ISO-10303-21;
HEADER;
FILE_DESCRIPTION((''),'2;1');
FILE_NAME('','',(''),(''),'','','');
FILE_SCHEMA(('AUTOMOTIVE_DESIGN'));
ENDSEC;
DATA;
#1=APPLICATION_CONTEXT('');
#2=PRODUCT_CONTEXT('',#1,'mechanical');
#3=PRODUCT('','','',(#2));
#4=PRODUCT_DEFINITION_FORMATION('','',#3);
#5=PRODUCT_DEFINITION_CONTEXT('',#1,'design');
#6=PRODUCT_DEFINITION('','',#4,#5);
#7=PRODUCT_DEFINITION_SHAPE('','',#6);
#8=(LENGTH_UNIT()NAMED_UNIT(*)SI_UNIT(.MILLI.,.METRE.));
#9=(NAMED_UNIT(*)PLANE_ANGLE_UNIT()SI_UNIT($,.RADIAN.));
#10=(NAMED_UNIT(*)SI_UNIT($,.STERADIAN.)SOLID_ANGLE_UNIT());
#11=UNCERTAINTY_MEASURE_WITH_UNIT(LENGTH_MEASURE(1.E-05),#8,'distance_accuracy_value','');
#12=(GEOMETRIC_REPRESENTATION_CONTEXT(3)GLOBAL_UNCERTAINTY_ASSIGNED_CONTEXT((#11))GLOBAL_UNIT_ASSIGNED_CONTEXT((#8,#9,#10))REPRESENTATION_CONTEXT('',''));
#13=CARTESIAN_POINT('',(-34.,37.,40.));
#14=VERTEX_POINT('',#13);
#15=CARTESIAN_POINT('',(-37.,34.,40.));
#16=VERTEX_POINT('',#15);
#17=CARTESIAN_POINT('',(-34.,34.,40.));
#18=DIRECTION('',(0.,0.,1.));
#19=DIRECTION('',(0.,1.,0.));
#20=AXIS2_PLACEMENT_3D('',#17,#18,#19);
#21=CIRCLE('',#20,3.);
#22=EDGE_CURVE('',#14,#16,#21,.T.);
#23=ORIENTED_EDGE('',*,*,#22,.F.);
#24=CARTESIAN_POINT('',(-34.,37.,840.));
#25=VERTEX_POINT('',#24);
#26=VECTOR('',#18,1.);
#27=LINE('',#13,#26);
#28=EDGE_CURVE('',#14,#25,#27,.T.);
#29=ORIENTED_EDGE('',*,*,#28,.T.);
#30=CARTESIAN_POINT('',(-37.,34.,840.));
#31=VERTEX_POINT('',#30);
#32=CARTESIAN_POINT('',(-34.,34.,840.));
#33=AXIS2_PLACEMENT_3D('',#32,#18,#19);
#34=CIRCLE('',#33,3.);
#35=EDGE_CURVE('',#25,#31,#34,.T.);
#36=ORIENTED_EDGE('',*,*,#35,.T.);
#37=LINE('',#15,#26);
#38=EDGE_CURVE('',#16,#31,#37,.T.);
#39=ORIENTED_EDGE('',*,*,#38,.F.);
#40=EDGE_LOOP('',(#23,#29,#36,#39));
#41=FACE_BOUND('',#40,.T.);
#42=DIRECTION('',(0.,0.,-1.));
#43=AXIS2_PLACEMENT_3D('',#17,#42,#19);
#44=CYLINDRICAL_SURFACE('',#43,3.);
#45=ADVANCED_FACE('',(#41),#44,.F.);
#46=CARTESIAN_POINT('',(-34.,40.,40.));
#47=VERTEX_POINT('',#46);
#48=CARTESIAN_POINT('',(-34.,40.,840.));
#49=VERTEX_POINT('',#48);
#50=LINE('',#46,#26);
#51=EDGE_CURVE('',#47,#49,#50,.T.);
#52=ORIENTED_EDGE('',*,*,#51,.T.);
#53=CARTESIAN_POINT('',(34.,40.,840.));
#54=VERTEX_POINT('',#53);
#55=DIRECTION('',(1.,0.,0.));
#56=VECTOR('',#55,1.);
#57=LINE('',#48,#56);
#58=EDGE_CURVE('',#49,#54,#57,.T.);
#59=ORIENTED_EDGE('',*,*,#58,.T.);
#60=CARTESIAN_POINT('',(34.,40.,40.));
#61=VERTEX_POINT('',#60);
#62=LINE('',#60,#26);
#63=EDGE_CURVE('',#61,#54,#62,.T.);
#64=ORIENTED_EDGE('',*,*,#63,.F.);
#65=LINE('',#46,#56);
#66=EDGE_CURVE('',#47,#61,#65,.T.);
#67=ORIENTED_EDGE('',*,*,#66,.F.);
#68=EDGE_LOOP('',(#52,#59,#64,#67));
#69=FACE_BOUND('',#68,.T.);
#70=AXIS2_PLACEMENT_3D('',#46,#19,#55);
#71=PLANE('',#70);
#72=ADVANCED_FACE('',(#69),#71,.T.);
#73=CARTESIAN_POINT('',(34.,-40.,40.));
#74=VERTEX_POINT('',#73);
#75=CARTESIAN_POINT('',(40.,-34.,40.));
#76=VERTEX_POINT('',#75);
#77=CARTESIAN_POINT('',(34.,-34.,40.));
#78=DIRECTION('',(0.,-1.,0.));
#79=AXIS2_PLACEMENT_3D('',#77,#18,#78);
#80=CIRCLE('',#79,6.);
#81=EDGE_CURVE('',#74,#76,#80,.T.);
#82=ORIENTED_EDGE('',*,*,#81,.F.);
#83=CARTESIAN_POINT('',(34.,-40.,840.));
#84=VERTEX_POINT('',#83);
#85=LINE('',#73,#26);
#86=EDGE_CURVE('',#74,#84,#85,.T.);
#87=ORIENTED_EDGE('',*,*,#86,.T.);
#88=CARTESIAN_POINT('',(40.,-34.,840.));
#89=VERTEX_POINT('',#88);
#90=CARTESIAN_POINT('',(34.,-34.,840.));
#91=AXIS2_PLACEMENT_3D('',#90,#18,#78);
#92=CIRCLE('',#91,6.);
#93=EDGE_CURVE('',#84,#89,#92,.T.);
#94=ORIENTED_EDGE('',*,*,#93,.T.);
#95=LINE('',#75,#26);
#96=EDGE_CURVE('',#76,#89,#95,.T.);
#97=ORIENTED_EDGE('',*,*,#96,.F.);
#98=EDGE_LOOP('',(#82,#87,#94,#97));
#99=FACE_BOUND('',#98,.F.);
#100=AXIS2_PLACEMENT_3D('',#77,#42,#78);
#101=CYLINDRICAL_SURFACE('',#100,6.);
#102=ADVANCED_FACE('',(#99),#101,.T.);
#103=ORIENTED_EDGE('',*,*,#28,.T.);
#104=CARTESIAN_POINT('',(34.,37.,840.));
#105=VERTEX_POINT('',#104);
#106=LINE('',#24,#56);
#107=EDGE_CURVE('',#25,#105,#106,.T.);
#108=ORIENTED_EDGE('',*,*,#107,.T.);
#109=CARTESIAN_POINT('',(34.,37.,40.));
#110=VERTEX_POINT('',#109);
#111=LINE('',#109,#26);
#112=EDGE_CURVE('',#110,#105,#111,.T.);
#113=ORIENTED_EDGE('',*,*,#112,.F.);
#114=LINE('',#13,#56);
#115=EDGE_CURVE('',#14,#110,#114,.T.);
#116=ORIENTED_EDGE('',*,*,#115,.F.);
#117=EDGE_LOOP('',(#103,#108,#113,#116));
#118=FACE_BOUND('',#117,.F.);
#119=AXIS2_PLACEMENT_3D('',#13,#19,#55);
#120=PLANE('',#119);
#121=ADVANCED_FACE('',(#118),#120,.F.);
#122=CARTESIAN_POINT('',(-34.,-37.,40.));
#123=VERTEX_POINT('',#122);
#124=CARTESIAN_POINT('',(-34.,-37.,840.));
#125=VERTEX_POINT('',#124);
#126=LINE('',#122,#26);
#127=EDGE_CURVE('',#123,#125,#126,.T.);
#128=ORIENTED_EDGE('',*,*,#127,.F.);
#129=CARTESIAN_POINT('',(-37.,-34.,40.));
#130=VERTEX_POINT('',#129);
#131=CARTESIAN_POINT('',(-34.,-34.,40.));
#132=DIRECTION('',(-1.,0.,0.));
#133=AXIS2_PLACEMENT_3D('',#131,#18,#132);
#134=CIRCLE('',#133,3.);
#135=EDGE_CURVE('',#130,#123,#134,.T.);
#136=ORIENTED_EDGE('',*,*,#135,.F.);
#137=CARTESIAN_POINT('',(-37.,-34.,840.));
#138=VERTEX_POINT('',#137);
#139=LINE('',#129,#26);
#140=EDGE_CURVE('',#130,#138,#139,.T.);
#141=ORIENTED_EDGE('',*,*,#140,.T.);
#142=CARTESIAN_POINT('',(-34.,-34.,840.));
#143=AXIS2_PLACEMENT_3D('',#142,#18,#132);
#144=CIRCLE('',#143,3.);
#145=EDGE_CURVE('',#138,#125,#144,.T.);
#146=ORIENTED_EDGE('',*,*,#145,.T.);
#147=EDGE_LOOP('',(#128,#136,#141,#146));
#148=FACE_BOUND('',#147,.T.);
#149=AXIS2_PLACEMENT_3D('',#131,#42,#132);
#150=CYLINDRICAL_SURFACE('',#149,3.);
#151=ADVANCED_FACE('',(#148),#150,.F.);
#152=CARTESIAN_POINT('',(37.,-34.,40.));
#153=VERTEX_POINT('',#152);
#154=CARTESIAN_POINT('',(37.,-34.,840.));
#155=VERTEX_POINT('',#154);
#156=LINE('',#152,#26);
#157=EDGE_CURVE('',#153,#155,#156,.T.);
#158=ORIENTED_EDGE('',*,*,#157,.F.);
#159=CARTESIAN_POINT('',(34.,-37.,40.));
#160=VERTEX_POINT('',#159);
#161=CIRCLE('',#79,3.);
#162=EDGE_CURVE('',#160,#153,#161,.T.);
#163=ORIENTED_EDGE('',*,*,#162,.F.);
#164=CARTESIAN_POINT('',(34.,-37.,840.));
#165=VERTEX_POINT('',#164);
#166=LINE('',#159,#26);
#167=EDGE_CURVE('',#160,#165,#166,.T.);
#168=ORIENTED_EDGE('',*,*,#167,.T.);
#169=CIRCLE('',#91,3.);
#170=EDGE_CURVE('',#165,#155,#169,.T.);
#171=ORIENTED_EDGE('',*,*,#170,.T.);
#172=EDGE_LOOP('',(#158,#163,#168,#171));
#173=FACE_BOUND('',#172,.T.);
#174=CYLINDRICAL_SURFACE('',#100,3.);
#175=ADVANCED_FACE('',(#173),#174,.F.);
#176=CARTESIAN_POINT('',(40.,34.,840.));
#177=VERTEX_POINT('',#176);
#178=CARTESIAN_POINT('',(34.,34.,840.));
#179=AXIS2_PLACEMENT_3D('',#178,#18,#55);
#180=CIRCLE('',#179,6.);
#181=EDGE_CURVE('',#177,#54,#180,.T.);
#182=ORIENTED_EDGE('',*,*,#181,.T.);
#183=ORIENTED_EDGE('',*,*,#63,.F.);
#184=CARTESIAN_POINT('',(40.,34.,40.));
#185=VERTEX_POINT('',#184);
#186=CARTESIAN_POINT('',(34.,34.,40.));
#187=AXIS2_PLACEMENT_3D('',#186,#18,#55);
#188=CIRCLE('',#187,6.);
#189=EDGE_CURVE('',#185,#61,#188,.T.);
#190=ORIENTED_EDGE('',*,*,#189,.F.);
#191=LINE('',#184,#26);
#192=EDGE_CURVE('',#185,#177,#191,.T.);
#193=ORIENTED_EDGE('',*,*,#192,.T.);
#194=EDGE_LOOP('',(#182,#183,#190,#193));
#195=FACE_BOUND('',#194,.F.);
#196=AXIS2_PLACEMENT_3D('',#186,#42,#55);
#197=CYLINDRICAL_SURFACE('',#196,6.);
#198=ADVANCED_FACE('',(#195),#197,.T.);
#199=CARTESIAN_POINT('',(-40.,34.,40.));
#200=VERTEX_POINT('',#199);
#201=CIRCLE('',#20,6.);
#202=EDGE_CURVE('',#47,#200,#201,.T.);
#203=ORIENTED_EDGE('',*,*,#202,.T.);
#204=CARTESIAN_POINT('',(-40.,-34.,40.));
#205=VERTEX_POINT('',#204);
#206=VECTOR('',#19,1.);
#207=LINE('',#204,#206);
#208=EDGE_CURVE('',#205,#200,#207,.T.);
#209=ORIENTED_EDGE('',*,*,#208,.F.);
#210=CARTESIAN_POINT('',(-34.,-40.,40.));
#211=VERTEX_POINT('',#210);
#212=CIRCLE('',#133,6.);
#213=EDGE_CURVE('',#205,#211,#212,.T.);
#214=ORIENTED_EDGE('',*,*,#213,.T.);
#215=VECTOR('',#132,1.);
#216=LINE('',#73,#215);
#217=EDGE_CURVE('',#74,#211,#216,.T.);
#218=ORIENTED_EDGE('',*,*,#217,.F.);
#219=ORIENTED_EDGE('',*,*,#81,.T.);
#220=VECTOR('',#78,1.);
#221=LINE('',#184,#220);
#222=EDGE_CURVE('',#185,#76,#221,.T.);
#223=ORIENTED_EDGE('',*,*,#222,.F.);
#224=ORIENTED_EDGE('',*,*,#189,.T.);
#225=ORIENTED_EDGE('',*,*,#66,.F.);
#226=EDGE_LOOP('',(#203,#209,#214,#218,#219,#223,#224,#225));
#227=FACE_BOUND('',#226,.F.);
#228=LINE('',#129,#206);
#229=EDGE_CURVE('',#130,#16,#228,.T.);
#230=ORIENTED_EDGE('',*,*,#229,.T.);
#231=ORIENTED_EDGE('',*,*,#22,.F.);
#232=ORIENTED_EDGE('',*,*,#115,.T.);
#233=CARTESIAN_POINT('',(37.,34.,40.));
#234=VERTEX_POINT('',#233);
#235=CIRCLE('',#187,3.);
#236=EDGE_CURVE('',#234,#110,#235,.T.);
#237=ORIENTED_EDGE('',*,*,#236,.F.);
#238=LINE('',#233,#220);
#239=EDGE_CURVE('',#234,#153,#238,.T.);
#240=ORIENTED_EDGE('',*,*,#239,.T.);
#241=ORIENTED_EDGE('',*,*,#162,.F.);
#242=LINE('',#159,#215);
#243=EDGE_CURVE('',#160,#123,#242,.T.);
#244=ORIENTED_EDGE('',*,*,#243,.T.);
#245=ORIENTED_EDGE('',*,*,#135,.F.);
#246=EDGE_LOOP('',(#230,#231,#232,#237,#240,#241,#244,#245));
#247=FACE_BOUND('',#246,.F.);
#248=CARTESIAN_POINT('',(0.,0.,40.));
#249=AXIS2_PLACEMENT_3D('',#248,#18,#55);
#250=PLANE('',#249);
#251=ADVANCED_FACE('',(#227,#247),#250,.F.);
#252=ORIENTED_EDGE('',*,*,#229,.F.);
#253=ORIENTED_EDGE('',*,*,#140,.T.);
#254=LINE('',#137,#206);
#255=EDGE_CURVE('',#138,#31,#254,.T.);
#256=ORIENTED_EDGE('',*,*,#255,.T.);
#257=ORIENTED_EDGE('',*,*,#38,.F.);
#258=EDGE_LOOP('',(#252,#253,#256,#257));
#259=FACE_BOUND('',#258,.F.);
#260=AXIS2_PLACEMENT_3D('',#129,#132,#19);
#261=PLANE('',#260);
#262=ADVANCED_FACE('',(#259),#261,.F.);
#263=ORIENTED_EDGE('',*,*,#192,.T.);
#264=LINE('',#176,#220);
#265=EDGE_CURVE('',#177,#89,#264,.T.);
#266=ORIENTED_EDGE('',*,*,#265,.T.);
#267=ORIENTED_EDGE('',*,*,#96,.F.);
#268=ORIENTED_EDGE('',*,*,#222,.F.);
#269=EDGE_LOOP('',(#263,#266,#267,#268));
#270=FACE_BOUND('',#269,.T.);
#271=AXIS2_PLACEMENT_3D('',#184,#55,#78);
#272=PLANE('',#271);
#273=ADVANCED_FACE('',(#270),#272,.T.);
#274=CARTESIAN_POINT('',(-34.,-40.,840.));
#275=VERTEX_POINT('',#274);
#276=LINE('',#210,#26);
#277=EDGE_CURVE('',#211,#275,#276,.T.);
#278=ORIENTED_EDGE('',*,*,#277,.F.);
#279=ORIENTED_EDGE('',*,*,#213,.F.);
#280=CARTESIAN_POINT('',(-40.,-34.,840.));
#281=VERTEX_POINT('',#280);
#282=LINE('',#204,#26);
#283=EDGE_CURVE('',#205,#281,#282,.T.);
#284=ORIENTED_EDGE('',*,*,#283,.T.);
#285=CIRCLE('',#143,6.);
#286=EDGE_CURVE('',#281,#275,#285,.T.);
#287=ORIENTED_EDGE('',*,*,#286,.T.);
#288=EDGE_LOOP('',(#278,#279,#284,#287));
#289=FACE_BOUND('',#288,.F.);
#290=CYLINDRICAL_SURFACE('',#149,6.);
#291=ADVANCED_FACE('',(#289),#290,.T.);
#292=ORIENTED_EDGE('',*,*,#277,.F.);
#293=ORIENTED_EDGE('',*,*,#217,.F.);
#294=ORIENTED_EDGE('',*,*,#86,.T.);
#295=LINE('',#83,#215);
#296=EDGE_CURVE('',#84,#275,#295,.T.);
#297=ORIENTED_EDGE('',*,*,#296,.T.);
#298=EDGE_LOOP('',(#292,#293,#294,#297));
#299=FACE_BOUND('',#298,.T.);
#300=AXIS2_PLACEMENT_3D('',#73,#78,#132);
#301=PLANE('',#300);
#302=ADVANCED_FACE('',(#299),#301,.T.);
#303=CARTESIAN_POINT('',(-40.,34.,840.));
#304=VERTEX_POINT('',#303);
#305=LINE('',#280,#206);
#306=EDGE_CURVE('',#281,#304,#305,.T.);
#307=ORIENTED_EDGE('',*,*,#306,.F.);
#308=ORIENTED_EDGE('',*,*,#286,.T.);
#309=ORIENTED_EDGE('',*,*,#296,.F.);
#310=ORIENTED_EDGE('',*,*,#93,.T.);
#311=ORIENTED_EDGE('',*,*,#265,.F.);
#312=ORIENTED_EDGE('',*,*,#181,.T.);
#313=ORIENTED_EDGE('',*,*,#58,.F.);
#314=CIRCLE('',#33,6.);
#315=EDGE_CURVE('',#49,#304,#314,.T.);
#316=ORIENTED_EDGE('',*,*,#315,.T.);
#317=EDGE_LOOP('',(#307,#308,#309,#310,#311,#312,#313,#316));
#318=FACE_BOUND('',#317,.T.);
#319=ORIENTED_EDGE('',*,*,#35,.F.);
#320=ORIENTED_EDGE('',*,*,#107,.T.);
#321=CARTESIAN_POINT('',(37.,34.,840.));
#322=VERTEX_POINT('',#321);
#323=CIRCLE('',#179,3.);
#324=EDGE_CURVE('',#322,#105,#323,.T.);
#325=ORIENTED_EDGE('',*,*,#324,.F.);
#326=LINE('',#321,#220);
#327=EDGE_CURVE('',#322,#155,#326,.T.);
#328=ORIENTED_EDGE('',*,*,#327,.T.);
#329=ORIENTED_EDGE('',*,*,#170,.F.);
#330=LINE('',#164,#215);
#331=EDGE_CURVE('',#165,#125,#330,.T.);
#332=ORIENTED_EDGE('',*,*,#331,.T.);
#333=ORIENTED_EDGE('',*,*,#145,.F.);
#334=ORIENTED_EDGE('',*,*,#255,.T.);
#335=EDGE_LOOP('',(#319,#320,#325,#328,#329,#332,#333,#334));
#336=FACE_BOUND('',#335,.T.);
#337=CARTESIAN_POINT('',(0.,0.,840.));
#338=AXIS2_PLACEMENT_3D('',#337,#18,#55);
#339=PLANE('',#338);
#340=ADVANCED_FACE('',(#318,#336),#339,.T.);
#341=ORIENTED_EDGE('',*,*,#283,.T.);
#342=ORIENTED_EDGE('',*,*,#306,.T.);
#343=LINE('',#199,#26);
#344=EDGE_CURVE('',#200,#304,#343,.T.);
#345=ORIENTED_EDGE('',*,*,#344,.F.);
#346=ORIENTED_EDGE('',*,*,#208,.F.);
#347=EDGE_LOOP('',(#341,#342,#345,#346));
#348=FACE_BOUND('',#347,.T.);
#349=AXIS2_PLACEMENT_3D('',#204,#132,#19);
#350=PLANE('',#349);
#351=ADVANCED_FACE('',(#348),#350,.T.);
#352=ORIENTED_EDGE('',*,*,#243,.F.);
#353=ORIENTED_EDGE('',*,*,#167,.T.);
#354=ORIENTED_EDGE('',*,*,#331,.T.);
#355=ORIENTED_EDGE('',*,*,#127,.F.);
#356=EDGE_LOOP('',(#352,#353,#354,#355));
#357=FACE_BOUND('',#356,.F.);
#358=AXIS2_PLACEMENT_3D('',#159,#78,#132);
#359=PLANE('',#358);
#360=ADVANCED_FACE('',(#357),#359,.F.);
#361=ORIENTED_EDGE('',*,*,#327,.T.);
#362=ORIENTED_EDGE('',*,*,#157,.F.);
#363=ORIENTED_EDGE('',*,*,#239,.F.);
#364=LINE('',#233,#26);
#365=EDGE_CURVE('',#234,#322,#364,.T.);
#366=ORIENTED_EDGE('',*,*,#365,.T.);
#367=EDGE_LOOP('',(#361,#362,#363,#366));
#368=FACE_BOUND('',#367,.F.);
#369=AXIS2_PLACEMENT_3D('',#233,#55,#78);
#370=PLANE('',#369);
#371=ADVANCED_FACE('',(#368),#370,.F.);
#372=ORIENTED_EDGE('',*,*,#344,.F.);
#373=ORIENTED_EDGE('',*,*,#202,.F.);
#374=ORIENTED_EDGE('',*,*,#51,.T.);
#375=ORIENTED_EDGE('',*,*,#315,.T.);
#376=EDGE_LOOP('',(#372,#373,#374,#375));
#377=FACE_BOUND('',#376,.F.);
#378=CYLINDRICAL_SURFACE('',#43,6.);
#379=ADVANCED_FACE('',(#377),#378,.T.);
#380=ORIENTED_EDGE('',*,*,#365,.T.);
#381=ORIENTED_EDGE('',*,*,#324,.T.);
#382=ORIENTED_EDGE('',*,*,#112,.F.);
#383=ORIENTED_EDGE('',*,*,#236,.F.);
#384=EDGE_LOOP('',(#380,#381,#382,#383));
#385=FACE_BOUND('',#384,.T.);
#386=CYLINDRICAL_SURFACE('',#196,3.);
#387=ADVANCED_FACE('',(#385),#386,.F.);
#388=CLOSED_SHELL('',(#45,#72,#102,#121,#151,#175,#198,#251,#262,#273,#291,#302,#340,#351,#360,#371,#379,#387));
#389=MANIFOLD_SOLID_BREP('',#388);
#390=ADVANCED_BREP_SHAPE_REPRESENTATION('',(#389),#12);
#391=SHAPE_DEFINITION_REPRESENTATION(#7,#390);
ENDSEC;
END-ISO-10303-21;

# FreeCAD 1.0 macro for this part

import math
import FreeCAD as App
import Part
import Sketcher
from FreeCAD import Vector

doc = App.newDocument("Part")
params = doc.addObject("Spreadsheet::Sheet", "Params")
for row, (alias, value) in enumerate([
    ("sketch1_radius", "6 mm"),
    ("sketch1_radius2", "3 mm"),
    ("pad1_length", "800 mm"),
], start=1):
    params.set(f"A{row}", alias)
    params.set(f"B{row}", "=" + value)
    params.setAlias(f"B{row}", alias)

body = doc.addObject("PartDesign::Body", "Body")

# Sketch on XY plane
sketch1 = body.newObject("Sketcher::SketchObject", "Sketch")
sketch1.AttachmentSupport = (doc.getObject("XY_Plane"), [""])
sketch1.MapMode = "FlatFace"
sketch1.AttachmentOffset = App.Placement(Vector(0, 0, 40), App.Rotation())
sketch1.addGeometry(Part.LineSegment(Vector(-40, 34, 0), Vector(-40, -34, 0)), False)
sketch1.addGeometry(Part.ArcOfCircle(Part.Circle(Vector(-34, -34, 0), Vector(0, 0, 1), 6), math.radians(180), math.radians(270)), False)
sketch1.addGeometry(Part.LineSegment(Vector(-34, -40, 0), Vector(34, -40, 0)), False)
sketch1.addGeometry(Part.ArcOfCircle(Part.Circle(Vector(34, -34, 0), Vector(0, 0, 1), 6), math.radians(-90), math.radians(0)), False)
sketch1.addGeometry(Part.LineSegment(Vector(40, -34, 0), Vector(40, 34, 0)), False)
sketch1.addGeometry(Part.ArcOfCircle(Part.Circle(Vector(34, 34, 0), Vector(0, 0, 1), 6), math.radians(0), math.radians(90)), False)
sketch1.addGeometry(Part.LineSegment(Vector(34, 40, 0), Vector(-34, 40, 0)), False)
sketch1.addGeometry(Part.ArcOfCircle(Part.Circle(Vector(-34, 34, 0), Vector(0, 0, 1), 6), math.radians(90), math.radians(180)), False)
sketch1.addGeometry(Part.ArcOfCircle(Part.Circle(Vector(-34, 34, 0), Vector(0, 0, 1), 3), math.radians(90), math.radians(180)), False)
sketch1.addGeometry(Part.LineSegment(Vector(-34, 37, 0), Vector(34, 37, 0)), False)
sketch1.addGeometry(Part.ArcOfCircle(Part.Circle(Vector(34, 34, 0), Vector(0, 0, 1), 3), math.radians(0), math.radians(90)), False)
sketch1.addGeometry(Part.LineSegment(Vector(37, 34, 0), Vector(37, -34, 0)), False)
sketch1.addGeometry(Part.ArcOfCircle(Part.Circle(Vector(34, -34, 0), Vector(0, 0, 1), 3), math.radians(-90), math.radians(0)), False)
sketch1.addGeometry(Part.LineSegment(Vector(34, -37, 0), Vector(-34, -37, 0)), False)
sketch1.addGeometry(Part.ArcOfCircle(Part.Circle(Vector(-34, -34, 0), Vector(0, 0, 1), 3), math.radians(180), math.radians(270)), False)
sketch1.addGeometry(Part.LineSegment(Vector(-37, -34, 0), Vector(-37, 34, 0)), False)
sketch1.addConstraint(Sketcher.Constraint("Tangent", 0, 2, 1, 1))
sketch1.addConstraint(Sketcher.Constraint("Tangent", 1, 2, 2, 1))
sketch1.addConstraint(Sketcher.Constraint("Tangent", 2, 2, 3, 1))
sketch1.addConstraint(Sketcher.Constraint("Tangent", 3, 2, 4, 1))
sketch1.addConstraint(Sketcher.Constraint("Tangent", 4, 2, 5, 1))
sketch1.addConstraint(Sketcher.Constraint("Tangent", 5, 2, 6, 1))
sketch1.addConstraint(Sketcher.Constraint("Tangent", 6, 2, 7, 1))
sketch1.addConstraint(Sketcher.Constraint("Tangent", 7, 2, 0, 1))
sketch1.addConstraint(Sketcher.Constraint("Tangent", 8, 1, 9, 1))
sketch1.addConstraint(Sketcher.Constraint("Tangent", 9, 2, 10, 2))
sketch1.addConstraint(Sketcher.Constraint("Tangent", 10, 1, 11, 1))
sketch1.addConstraint(Sketcher.Constraint("Tangent", 11, 2, 12, 2))
sketch1.addConstraint(Sketcher.Constraint("Tangent", 12, 1, 13, 1))
sketch1.addConstraint(Sketcher.Constraint("Tangent", 13, 2, 14, 2))
sketch1.addConstraint(Sketcher.Constraint("Tangent", 14, 1, 15, 1))
sketch1.addConstraint(Sketcher.Constraint("Tangent", 15, 2, 8, 2))
sketch1.addConstraint(Sketcher.Constraint("Vertical", 0))
sketch1.addConstraint(Sketcher.Constraint("Horizontal", 2))
sketch1.addConstraint(Sketcher.Constraint("Vertical", 4))
sketch1.addConstraint(Sketcher.Constraint("Horizontal", 6))
sketch1.addConstraint(Sketcher.Constraint("Horizontal", 9))
sketch1.addConstraint(Sketcher.Constraint("Vertical", 11))
sketch1.addConstraint(Sketcher.Constraint("Horizontal", 13))
sketch1.addConstraint(Sketcher.Constraint("Vertical", 15))
sketch1.addConstraint(Sketcher.Constraint("Coincident", 8, 3, 7, 3))
sketch1.addConstraint(Sketcher.Constraint("Coincident", 10, 3, 5, 3))
sketch1.addConstraint(Sketcher.Constraint("Coincident", 12, 3, 3, 3))
sketch1.addConstraint(Sketcher.Constraint("Equal", 1, 3))
sketch1.addConstraint(Sketcher.Constraint("Equal", 3, 5))
sketch1.addConstraint(Sketcher.Constraint("Equal", 5, 7))
sketch1.addConstraint(Sketcher.Constraint("Equal", 12, 14))
sketch1.addConstraint(Sketcher.Constraint("Symmetric", 1, 3, 5, 3, -1, 1))
sketch1.addConstraint(Sketcher.Constraint("Equal", 13, 0))
sketch1.addConstraint(Sketcher.Constraint("Radius", 1, 6.0))
sketch1.addConstraint(Sketcher.Constraint("Radius", 8, 3.0))
sketch1.addConstraint(Sketcher.Constraint("DistanceX", 0, 2, -1, 1, 40.0))
sketch1.setExpression("Constraints[33]", "Params.sketch1_radius")
sketch1.setExpression("Constraints[34]", "Params.sketch1_radius2")
pad1 = body.newObject("PartDesign::Pad", "Pad")
pad1.Profile = sketch1
pad1.setExpression("Length", "Params.pad1_length")

doc.recompute()
